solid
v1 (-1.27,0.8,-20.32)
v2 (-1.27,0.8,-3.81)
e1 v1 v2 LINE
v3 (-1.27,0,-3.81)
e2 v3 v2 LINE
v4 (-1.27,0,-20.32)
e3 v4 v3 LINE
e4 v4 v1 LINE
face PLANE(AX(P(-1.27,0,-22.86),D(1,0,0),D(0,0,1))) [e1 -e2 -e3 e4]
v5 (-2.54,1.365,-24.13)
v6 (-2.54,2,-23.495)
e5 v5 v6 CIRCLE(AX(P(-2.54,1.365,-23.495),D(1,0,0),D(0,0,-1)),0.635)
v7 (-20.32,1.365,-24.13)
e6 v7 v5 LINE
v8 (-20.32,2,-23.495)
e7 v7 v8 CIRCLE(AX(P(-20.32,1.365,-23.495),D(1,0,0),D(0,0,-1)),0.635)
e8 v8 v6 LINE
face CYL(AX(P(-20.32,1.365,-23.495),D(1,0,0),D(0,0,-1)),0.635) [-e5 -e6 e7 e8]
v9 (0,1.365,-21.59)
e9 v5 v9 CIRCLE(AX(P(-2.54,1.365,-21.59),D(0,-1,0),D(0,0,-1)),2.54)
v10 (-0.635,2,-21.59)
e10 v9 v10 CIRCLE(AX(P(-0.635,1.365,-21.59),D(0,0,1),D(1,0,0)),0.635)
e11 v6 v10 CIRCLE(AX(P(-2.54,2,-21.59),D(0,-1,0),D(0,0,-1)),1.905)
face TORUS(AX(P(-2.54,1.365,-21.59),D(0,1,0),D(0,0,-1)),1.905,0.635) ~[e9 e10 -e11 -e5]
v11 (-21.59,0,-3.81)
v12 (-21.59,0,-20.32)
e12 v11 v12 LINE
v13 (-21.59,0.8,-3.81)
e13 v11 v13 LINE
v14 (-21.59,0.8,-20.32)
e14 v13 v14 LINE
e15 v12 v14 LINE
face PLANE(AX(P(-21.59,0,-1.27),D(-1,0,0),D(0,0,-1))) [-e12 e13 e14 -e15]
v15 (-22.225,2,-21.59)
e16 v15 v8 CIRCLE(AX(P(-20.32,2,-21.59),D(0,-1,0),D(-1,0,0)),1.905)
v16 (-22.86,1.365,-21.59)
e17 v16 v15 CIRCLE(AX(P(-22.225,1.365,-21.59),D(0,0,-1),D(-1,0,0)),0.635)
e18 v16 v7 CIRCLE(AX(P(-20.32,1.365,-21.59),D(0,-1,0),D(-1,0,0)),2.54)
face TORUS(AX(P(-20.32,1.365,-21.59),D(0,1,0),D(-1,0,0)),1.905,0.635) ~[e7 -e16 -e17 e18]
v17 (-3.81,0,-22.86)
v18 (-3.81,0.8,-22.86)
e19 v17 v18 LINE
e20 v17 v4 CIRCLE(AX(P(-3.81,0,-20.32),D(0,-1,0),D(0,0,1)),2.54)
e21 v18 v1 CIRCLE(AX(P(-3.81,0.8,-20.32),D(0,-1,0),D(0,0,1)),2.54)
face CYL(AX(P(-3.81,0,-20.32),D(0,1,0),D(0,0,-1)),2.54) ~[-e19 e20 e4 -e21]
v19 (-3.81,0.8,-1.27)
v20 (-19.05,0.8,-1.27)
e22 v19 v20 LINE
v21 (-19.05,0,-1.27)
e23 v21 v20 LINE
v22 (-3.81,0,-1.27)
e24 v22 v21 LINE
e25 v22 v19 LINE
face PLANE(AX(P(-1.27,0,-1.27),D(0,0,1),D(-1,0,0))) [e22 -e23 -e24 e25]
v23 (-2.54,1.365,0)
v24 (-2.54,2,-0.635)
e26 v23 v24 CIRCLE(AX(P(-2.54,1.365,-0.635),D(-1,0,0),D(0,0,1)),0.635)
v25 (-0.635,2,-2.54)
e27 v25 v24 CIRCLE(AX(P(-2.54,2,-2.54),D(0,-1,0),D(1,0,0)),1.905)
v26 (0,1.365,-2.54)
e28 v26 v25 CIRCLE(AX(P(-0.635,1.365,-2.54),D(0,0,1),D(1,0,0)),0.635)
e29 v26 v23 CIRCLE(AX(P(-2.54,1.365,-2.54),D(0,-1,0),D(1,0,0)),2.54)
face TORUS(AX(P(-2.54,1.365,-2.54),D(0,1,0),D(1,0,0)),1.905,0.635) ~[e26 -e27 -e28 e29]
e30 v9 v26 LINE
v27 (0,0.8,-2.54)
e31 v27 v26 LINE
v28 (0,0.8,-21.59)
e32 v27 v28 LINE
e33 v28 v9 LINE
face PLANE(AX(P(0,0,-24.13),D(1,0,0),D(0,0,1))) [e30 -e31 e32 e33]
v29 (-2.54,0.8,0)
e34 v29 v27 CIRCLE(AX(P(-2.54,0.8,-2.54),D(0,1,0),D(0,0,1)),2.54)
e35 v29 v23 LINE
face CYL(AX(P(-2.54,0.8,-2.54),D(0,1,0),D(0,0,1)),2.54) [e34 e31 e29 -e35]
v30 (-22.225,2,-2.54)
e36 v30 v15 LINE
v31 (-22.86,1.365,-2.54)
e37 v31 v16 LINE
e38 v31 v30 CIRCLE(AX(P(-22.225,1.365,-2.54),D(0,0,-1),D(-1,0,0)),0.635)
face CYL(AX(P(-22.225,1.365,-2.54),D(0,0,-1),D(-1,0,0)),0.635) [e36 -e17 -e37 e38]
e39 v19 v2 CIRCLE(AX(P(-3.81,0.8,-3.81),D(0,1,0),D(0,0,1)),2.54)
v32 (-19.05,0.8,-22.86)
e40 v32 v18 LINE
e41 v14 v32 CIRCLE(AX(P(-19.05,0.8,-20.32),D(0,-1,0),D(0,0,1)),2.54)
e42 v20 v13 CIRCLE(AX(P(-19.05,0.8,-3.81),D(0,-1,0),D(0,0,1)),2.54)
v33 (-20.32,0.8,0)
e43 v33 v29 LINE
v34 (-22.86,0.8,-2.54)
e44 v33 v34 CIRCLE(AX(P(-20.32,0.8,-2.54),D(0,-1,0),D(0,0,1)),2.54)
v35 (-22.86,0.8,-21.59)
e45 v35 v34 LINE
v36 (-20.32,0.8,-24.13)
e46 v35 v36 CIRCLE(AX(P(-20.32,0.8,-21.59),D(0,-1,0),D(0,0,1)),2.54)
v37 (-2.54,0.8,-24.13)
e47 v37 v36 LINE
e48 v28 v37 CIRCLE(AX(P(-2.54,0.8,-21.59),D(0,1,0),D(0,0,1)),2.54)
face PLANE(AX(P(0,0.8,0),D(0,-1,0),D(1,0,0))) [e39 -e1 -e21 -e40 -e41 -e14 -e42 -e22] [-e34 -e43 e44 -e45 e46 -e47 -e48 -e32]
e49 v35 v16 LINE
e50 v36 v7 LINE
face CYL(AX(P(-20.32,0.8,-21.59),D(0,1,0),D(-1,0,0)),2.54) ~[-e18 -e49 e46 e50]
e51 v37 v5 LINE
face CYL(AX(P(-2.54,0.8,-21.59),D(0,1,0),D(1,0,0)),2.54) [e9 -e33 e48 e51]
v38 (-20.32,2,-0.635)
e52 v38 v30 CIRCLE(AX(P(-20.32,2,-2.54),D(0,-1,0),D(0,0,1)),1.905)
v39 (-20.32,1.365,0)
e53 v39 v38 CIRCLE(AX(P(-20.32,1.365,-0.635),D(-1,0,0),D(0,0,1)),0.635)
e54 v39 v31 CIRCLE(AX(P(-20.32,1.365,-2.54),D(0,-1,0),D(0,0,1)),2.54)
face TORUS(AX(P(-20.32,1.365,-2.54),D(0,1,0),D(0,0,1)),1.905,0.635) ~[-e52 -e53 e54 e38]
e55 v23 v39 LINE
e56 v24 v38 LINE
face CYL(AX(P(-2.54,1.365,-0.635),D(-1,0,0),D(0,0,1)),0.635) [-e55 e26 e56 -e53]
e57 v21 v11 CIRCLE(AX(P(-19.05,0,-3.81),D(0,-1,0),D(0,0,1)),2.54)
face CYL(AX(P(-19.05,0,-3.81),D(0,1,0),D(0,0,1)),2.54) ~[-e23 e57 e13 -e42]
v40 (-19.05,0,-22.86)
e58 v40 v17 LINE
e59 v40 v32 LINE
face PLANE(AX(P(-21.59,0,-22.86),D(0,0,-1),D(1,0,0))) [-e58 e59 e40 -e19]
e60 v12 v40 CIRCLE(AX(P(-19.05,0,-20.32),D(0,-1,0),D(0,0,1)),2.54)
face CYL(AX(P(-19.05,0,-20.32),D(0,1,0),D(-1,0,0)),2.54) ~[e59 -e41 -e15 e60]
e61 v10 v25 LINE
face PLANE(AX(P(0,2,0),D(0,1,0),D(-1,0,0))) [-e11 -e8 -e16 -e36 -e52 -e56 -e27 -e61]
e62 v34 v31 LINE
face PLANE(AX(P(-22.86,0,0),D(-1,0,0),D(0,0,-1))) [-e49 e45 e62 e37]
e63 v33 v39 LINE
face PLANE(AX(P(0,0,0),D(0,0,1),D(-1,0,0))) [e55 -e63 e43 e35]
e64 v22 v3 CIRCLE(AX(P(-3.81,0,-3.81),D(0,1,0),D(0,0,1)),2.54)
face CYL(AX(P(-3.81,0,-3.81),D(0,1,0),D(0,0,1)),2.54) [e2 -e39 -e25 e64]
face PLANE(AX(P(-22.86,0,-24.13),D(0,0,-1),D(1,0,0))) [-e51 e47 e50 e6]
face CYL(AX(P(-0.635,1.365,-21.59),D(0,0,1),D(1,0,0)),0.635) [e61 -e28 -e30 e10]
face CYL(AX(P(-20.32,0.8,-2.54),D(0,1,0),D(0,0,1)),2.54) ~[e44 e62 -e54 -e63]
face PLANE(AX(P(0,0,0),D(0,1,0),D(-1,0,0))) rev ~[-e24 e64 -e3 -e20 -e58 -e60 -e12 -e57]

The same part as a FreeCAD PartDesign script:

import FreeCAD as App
import Part
import Sketcher
Q = App.Units.Quantity


def edges_at(feature, points):
    """Names of the edges that pass closest to the given points."""
    edges = feature.Shape.Edges
    near = lambda p: min(range(len(edges)), key=lambda i: edges[i].distToShape(Part.Vertex(*p))[0])
    return sorted({f"Edge{near(p) + 1}" for p in points})

doc = App.newDocument("Part")
body = doc.addObject("PartDesign::Body", "Body")

sketch1 = doc.addObject("Sketcher::SketchObject", "Sketch")
body.addObject(sketch1)
sketch1.AttachmentSupport = (doc.XZ_Plane, [""])
sketch1.MapMode = "FlatFace"
sketch1.addGeometry(Part.LineSegment(App.Vector(-23, 0, 0), App.Vector(0, 0, 0)), False)
sketch1.addGeometry(Part.LineSegment(App.Vector(0, 0, 0), App.Vector(0, -24, 0)), False)
sketch1.addGeometry(Part.LineSegment(App.Vector(0, -24, 0), App.Vector(-23, -24, 0)), False)
sketch1.addGeometry(Part.LineSegment(App.Vector(-23, -24, 0), App.Vector(-23, 0, 0)), False)
sketch1.addConstraint(Sketcher.Constraint("Coincident", 0, 2, 1, 1))
sketch1.addConstraint(Sketcher.Constraint("Coincident", 1, 2, 2, 1))
sketch1.addConstraint(Sketcher.Constraint("Coincident", 2, 2, 3, 1))
sketch1.addConstraint(Sketcher.Constraint("Coincident", 3, 2, 0, 1))
sketch1.addConstraint(Sketcher.Constraint("Horizontal", 0))
sketch1.addConstraint(Sketcher.Constraint("Vertical", 1))
sketch1.addConstraint(Sketcher.Constraint("Horizontal", 2))
sketch1.addConstraint(Sketcher.Constraint("Vertical", 3))
sketch1.addConstraint(Sketcher.Constraint("Coincident", 0, 2, -1, 1))
sketch1.addConstraint(Sketcher.Constraint("DistanceX", 0, 1, 0, 2, Q("0.9 in")))
sketch1.addConstraint(Sketcher.Constraint("DistanceY", 1, 2, 1, 1, Q("0.95 in")))
pad1 = doc.addObject("PartDesign::Pad", "Pad")
body.addObject(pad1)
pad1.Profile = sketch1
pad1.Length = 2
pad1.Reversed = True

sketch2 = doc.addObject("Sketcher::SketchObject", "Sketch001")
body.addObject(sketch2)
sketch2.AttachmentSupport = (doc.XZ_Plane, [""])
sketch2.MapMode = "FlatFace"
sketch2.addGeometry(Part.LineSegment(App.Vector(0, 0, 0), App.Vector(-23, 0, 0)), False)
sketch2.addGeometry(Part.LineSegment(App.Vector(-23, 0, 0), App.Vector(-23, -24, 0)), False)
sketch2.addGeometry(Part.LineSegment(App.Vector(-23, -24, 0), App.Vector(0, -24, 0)), False)
sketch2.addGeometry(Part.LineSegment(App.Vector(0, -24, 0), App.Vector(0, 0, 0)), False)
sketch2.addGeometry(Part.LineSegment(App.Vector(-22, -1, 0), App.Vector(-1, -1, 0)), False)
sketch2.addGeometry(Part.LineSegment(App.Vector(-1, -1, 0), App.Vector(-1, -23, 0)), False)
sketch2.addGeometry(Part.LineSegment(App.Vector(-1, -23, 0), App.Vector(-22, -23, 0)), False)
sketch2.addGeometry(Part.LineSegment(App.Vector(-22, -23, 0), App.Vector(-22, -1, 0)), False)
sketch2.addConstraint(Sketcher.Constraint("Coincident", 0, 2, 1, 1))
sketch2.addConstraint(Sketcher.Constraint("Coincident", 1, 2, 2, 1))
sketch2.addConstraint(Sketcher.Constraint("Coincident", 2, 2, 3, 1))
sketch2.addConstraint(Sketcher.Constraint("Coincident", 3, 2, 0, 1))
sketch2.addConstraint(Sketcher.Constraint("Coincident", 4, 2, 5, 1))
sketch2.addConstraint(Sketcher.Constraint("Coincident", 5, 2, 6, 1))
sketch2.addConstraint(Sketcher.Constraint("Coincident", 6, 2, 7, 1))
sketch2.addConstraint(Sketcher.Constraint("Coincident", 7, 2, 4, 1))
sketch2.addConstraint(Sketcher.Constraint("Horizontal", 0))
sketch2.addConstraint(Sketcher.Constraint("Vertical", 1))
sketch2.addConstraint(Sketcher.Constraint("Horizontal", 2))
sketch2.addConstraint(Sketcher.Constraint("Vertical", 3))
sketch2.addConstraint(Sketcher.Constraint("Horizontal", 4))
sketch2.addConstraint(Sketcher.Constraint("Vertical", 5))
sketch2.addConstraint(Sketcher.Constraint("Horizontal", 6))
sketch2.addConstraint(Sketcher.Constraint("Vertical", 7))
sketch2.addConstraint(Sketcher.Constraint("Coincident", 3, 2, -1, 1))
sketch2.addConstraint(Sketcher.Constraint("DistanceX", 4, 1, 4, 2, Q("0.8 in")))
sketch2.addConstraint(Sketcher.Constraint("DistanceY", 5, 2, 5, 1, Q("0.85 in")))
sketch2.addConstraint(Sketcher.Constraint("DistanceX", 4, 2, -1, 1, Q("0.05 in")))
sketch2.addConstraint(Sketcher.Constraint("DistanceY", 4, 2, -1, 1, Q("0.05 in")))
sketch2.addConstraint(Sketcher.Constraint("DistanceX", 0, 2, 4, 2, Q("0.85 in")))
sketch2.addConstraint(Sketcher.Constraint("DistanceY", 2, 2, 5, 2, Q("0.05 in")))
pocket1 = doc.addObject("PartDesign::Pocket", "Pocket")
body.addObject(pocket1)
pocket1.Profile = sketch2
pocket1.Length = Q("0.0314961 in")
doc.recompute()

fillet = doc.addObject("PartDesign::Fillet", "Fillet")
body.addObject(fillet)
fillet.Base = (pocket1, edges_at(pocket1, [
    (0, 1.4, 0),
    (0, 1.4, -24.13),
    (-22.86, 1.4, -24.13),
    (-22.86, 1.4, 0),
    (-21.59, 0.4, -1.27),
    (-1.27, 0.4, -1.27),
    (-1.27, 0.4, -22.86),
    (-21.59, 0.4, -22.86),
]))
fillet.Radius = Q("0.1 in")
doc.recompute()

fillet2 = doc.addObject("PartDesign::Fillet", "Fillet001")
body.addObject(fillet2)
fillet2.Base = (fillet, edges_at(fillet, [
    (-22.116, 2, -0.744),
    (-11.43, 2, 0),
    (-0.744, 2, -0.744),
    (0, 2, -12.065),
    (-0.744, 2, -23.386),
    (-11.43, 2, -24.13),
    (-22.116, 2, -23.386),
    (-22.86, 2, -12.065),
]))
fillet2.Radius = Q("0.025 in")

doc.recompute()
